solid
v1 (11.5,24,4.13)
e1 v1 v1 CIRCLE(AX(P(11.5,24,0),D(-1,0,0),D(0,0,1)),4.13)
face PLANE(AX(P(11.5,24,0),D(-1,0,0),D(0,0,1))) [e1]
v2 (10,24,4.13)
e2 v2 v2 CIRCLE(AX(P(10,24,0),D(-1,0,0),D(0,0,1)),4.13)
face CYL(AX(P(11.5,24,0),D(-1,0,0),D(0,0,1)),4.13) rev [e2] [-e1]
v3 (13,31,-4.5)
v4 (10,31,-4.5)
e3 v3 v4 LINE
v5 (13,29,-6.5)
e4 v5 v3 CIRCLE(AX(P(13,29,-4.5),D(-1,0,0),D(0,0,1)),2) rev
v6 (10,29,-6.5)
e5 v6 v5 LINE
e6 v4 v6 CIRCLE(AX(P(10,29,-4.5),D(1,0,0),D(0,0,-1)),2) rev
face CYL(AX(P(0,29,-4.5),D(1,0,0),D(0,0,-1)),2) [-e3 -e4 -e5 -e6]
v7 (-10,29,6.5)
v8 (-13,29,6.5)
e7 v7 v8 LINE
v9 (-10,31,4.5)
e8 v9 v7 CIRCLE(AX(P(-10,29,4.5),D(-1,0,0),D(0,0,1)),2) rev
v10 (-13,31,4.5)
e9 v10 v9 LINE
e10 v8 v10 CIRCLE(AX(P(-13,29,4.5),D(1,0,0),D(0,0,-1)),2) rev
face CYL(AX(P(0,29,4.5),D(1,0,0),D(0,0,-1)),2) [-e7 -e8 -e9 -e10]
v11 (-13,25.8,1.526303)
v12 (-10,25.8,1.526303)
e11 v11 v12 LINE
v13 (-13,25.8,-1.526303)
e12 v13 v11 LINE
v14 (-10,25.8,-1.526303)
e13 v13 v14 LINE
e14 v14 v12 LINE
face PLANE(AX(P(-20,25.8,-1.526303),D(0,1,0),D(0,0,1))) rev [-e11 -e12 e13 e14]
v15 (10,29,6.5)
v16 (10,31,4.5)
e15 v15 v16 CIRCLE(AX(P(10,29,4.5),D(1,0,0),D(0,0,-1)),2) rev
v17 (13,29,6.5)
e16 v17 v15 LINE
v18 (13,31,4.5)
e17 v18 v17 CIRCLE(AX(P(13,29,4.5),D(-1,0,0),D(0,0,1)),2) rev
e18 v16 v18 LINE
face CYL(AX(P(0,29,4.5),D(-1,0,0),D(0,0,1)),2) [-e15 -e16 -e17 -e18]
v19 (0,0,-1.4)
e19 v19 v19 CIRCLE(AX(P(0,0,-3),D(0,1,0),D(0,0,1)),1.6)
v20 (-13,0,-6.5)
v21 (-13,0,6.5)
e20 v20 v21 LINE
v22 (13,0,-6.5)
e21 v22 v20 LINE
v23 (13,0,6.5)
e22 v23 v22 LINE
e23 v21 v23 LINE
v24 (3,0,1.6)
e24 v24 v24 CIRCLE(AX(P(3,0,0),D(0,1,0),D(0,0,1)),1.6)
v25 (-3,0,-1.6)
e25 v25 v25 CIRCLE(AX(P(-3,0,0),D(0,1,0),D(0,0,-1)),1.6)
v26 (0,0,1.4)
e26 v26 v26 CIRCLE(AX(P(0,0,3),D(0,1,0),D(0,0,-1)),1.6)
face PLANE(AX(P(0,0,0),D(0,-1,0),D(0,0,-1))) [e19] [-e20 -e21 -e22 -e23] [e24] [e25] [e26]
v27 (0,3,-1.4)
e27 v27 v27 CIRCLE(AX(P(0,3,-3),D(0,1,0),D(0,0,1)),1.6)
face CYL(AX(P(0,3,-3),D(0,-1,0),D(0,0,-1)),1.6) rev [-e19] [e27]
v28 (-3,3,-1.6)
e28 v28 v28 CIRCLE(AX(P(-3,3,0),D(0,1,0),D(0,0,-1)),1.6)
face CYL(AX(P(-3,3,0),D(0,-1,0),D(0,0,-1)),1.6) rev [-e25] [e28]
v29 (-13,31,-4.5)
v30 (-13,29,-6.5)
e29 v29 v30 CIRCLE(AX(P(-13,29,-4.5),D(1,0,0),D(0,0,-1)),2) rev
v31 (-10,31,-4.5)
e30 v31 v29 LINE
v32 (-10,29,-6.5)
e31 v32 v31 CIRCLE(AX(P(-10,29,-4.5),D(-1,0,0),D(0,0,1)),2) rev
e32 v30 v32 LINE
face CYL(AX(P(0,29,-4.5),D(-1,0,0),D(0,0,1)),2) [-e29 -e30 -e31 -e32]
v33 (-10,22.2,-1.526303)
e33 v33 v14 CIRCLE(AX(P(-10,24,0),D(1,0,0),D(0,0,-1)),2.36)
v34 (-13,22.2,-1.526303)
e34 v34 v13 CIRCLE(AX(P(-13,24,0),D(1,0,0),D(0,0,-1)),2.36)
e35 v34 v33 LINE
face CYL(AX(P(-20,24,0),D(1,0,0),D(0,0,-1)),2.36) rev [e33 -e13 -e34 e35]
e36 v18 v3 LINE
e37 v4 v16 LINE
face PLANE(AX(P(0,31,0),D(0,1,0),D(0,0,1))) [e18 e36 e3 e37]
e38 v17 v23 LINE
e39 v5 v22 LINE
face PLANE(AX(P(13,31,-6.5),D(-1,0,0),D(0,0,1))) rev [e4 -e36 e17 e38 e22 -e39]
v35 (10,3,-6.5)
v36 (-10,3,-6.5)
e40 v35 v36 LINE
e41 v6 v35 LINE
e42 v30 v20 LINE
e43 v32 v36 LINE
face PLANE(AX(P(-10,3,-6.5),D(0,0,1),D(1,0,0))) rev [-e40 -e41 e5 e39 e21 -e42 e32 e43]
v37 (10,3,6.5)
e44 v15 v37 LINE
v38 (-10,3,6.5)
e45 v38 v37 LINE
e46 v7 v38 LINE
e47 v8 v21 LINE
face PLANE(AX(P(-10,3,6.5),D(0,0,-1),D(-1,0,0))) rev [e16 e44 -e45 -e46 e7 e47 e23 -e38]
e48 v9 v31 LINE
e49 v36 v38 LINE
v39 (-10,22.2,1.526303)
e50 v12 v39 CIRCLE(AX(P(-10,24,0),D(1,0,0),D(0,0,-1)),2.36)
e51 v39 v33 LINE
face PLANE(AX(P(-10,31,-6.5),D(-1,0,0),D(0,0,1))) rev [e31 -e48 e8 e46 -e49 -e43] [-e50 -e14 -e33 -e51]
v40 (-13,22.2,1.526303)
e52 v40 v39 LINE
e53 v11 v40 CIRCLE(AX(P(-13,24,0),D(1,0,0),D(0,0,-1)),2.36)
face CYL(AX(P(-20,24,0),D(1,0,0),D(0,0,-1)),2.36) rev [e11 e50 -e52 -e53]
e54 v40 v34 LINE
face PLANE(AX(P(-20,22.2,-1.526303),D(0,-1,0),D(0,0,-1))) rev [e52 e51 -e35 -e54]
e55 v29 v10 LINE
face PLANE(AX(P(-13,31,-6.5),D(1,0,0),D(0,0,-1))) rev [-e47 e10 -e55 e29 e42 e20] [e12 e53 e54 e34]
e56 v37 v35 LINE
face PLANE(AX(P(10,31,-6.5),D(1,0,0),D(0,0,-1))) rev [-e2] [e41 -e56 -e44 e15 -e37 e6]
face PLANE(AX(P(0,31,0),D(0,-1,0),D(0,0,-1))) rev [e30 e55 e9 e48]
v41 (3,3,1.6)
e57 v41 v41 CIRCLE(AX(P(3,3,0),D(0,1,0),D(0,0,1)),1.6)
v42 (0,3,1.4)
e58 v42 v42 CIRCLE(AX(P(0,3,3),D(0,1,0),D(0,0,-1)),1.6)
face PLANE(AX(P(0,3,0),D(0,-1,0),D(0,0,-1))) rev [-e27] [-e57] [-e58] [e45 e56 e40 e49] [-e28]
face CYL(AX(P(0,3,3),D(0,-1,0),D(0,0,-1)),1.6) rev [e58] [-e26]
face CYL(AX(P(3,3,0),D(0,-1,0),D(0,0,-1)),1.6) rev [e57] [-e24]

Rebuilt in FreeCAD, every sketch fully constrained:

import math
import FreeCAD as App
import Part
import Sketcher

V = App.Vector


def edges_at(feature, points):
    """Names of the edges that pass closest to the given points."""
    edges = feature.Shape.Edges
    near = lambda p: min(range(len(edges)), key=lambda i: edges[i].distToShape(Part.Vertex(*p))[0])
    return sorted({f"Edge{near(p) + 1}" for p in points})

doc = App.newDocument("Part")
body = doc.addObject("PartDesign::Body", "Body")

# Sketch on XZ plane
sketch1 = body.newObject("Sketcher::SketchObject", "Sketch")
sketch1.AttachmentSupport = (doc.getObject("XZ_Plane"), [""])
sketch1.MapMode = "FlatFace"
sketch1.addGeometry([
    Part.LineSegment(V(-10, -6.5, 0), V(-10, 6.5, 0)),  # 0
    Part.LineSegment(V(-10, 6.5, 0), V(10, 6.5, 0)),  # 1
    Part.LineSegment(V(10, 6.5, 0), V(10, -6.5, 0)),  # 2
    Part.LineSegment(V(10, -6.5, 0), V(-10, -6.5, 0)),  # 3
    Part.Circle(V(0, 3, 0), V(0, 0, 1), 1.6),  # 4
    Part.Circle(V(-3, 0, 0), V(0, 0, 1), 1.6),  # 5
    Part.Circle(V(3, 0, 0), V(0, 0, 1), 1.6),  # 6
    Part.Circle(V(0, -3, 0), V(0, 0, 1), 1.6),  # 7
], False)
sketch1.addConstraint([
    Sketcher.Constraint("Coincident", 0, 2, 1, 1),
    Sketcher.Constraint("Coincident", 1, 2, 2, 1),
    Sketcher.Constraint("Coincident", 2, 2, 3, 1),
    Sketcher.Constraint("Coincident", 3, 2, 0, 1),
    Sketcher.Constraint("Vertical", 0),
    Sketcher.Constraint("Horizontal", 1),
    Sketcher.Constraint("Vertical", 2),
    Sketcher.Constraint("Horizontal", 3),
    Sketcher.Constraint("Equal", 4, 5),
    Sketcher.Constraint("Equal", 5, 6),
    Sketcher.Constraint("Equal", 6, 7),
    Sketcher.Constraint("Symmetric", 5, 3, 6, 3, -1, 1),
    Sketcher.Constraint("Symmetric", 4, 3, 7, 3, -1, 1),
    Sketcher.Constraint("Symmetric", 0, 2, 2, 2, -1, 1),
    Sketcher.Constraint("PointOnObject", 4, 3, -2),
    Sketcher.Constraint("PointOnObject", 5, 3, -1),
    Sketcher.Constraint("Diameter", 4, 3.2),
    Sketcher.Constraint("DistanceX", 1, 1, 1, 2, 20.0),
    Sketcher.Constraint("DistanceY", 0, 1, 0, 2, 13.0),
    Sketcher.Constraint("DistanceY", -1, 1, 4, 3, 3.0),
    Sketcher.Constraint("DistanceX", 5, 3, -1, 1, 3.0),
])
pad1 = body.newObject("PartDesign::Pad", "Pad")
pad1.Profile = sketch1
pad1.Length = 3
pad1.Reversed = True

# Sketch on XZ plane
sketch2 = body.newObject("Sketcher::SketchObject", "Sketch001")
sketch2.AttachmentSupport = (doc.getObject("XZ_Plane"), [""])
sketch2.MapMode = "FlatFace"
sketch2.addGeometry([
    Part.LineSegment(V(10, -6.5, 0), V(10, 6.5, 0)),  # 0
    Part.LineSegment(V(10, 6.5, 0), V(13, 6.5, 0)),  # 1
    Part.LineSegment(V(13, 6.5, 0), V(13, -6.5, 0)),  # 2
    Part.LineSegment(V(13, -6.5, 0), V(10, -6.5, 0)),  # 3
    Part.LineSegment(V(-13, -6.5, 0), V(-13, 6.5, 0)),  # 4
    Part.LineSegment(V(-13, 6.5, 0), V(-10, 6.5, 0)),  # 5
    Part.LineSegment(V(-10, 6.5, 0), V(-10, -6.5, 0)),  # 6
    Part.LineSegment(V(-10, -6.5, 0), V(-13, -6.5, 0)),  # 7
], False)
sketch2.addConstraint([
    Sketcher.Constraint("Coincident", 0, 2, 1, 1),
    Sketcher.Constraint("Coincident", 1, 2, 2, 1),
    Sketcher.Constraint("Coincident", 2, 2, 3, 1),
    Sketcher.Constraint("Coincident", 3, 2, 0, 1),
    Sketcher.Constraint("Coincident", 4, 2, 5, 1),
    Sketcher.Constraint("Coincident", 5, 2, 6, 1),
    Sketcher.Constraint("Coincident", 6, 2, 7, 1),
    Sketcher.Constraint("Coincident", 7, 2, 4, 1),
    Sketcher.Constraint("Vertical", 0),
    Sketcher.Constraint("Horizontal", 1),
    Sketcher.Constraint("Vertical", 2),
    Sketcher.Constraint("Horizontal", 3),
    Sketcher.Constraint("Vertical", 4),
    Sketcher.Constraint("Horizontal", 5),
    Sketcher.Constraint("Vertical", 6),
    Sketcher.Constraint("Horizontal", 7),
    Sketcher.Constraint("Symmetric", 2, 2, 4, 2, -1, 1),
    Sketcher.Constraint("Symmetric", 0, 2, 6, 2, -1, 1),
    Sketcher.Constraint("Horizontal", 1, 2, 4, 2),
    Sketcher.Constraint("DistanceX", 1, 1, 1, 2, 3.0),
    Sketcher.Constraint("DistanceY", 0, 1, 0, 2, 13.0),
    Sketcher.Constraint("DistanceX", -1, 1, 0, 2, 10.0),
])
pad2 = body.newObject("PartDesign::Pad", "Pad001")
pad2.Profile = sketch2
pad2.Length = 31
pad2.Reversed = True

# Sketch on YZ plane
sketch3 = body.newObject("Sketcher::SketchObject", "Sketch002")
sketch3.AttachmentSupport = (doc.getObject("YZ_Plane"), [""])
sketch3.MapMode = "FlatFace"
sketch3.AttachmentOffset = App.Placement(V(0, 0, 10), App.Rotation())
sketch3.addGeometry(Part.Circle(V(24, 0, 0), V(0, 0, 1), 4.13), False)
sketch3.addConstraint([
    Sketcher.Constraint("PointOnObject", 0, 3, -1),
    Sketcher.Constraint("Diameter", 0, 8.26),
    Sketcher.Constraint("DistanceX", -1, 1, 0, 3, 24.0),
])
pocket1 = body.newObject("PartDesign::Pocket", "Pocket")
pocket1.Profile = sketch3
pocket1.Length = 1.5
pocket1.Reversed = True

# Sketch on YZ plane
sketch4 = body.newObject("Sketcher::SketchObject", "Sketch003")
sketch4.AttachmentSupport = (doc.getObject("YZ_Plane"), [""])
sketch4.MapMode = "FlatFace"
sketch4.AttachmentOffset = App.Placement(V(0, 0, -10), App.Rotation())
sketch4.addGeometry([
    Part.LineSegment(V(25.8, -1.526303, 0), V(25.8, 1.526303, 0)),
    Part.ArcOfCircle(Part.Circle(V(24, 0, 0), V(0, 0, 1), 2.36), math.radians(40.296143), math.radians(139.703857)),
    Part.LineSegment(V(22.2, 1.526303, 0), V(22.2, -1.526303, 0)),
    Part.ArcOfCircle(Part.Circle(V(24, 0, 0), V(0, 0, 1), 2.36), math.radians(-139.703857), math.radians(-40.296143)),
], False)
sketch4.addConstraint([
    Sketcher.Constraint("Coincident", 0, 2, 1, 1),
    Sketcher.Constraint("Coincident", 1, 2, 2, 1),
    Sketcher.Constraint("Coincident", 2, 2, 3, 1),
    Sketcher.Constraint("Coincident", 3, 2, 0, 1),
    Sketcher.Constraint("Vertical", 0),
    Sketcher.Constraint("Vertical", 2),
    Sketcher.Constraint("Coincident", 3, 3, 1, 3),
    Sketcher.Constraint("Equal", 1, 3),
    Sketcher.Constraint("PointOnObject", 1, 3, -1),
    Sketcher.Constraint("Horizontal", 0, 2, 1, 2),
    Sketcher.Constraint("Radius", 1, 2.36),
    Sketcher.Constraint("DistanceX", -1, 1, 1, 3, 24.0),
    Sketcher.Constraint("DistanceX", -1, 1, 0, 2, 25.8),
])
pocket2 = body.newObject("PartDesign::Pocket", "Pocket001")
pocket2.Profile = sketch4
pocket2.Length = 10
doc.recompute()

fillet = body.newObject("PartDesign::Fillet", "Fillet")
fillet.Base = (pocket2, edges_at(pocket2, [
    (-11.5, 31, -6.5),
    (-11.5, 31, 6.5),
    (11.5, 31, 6.5),
    (11.5, 31, -6.5),
]))
fillet.Radius = 2

doc.recompute()
